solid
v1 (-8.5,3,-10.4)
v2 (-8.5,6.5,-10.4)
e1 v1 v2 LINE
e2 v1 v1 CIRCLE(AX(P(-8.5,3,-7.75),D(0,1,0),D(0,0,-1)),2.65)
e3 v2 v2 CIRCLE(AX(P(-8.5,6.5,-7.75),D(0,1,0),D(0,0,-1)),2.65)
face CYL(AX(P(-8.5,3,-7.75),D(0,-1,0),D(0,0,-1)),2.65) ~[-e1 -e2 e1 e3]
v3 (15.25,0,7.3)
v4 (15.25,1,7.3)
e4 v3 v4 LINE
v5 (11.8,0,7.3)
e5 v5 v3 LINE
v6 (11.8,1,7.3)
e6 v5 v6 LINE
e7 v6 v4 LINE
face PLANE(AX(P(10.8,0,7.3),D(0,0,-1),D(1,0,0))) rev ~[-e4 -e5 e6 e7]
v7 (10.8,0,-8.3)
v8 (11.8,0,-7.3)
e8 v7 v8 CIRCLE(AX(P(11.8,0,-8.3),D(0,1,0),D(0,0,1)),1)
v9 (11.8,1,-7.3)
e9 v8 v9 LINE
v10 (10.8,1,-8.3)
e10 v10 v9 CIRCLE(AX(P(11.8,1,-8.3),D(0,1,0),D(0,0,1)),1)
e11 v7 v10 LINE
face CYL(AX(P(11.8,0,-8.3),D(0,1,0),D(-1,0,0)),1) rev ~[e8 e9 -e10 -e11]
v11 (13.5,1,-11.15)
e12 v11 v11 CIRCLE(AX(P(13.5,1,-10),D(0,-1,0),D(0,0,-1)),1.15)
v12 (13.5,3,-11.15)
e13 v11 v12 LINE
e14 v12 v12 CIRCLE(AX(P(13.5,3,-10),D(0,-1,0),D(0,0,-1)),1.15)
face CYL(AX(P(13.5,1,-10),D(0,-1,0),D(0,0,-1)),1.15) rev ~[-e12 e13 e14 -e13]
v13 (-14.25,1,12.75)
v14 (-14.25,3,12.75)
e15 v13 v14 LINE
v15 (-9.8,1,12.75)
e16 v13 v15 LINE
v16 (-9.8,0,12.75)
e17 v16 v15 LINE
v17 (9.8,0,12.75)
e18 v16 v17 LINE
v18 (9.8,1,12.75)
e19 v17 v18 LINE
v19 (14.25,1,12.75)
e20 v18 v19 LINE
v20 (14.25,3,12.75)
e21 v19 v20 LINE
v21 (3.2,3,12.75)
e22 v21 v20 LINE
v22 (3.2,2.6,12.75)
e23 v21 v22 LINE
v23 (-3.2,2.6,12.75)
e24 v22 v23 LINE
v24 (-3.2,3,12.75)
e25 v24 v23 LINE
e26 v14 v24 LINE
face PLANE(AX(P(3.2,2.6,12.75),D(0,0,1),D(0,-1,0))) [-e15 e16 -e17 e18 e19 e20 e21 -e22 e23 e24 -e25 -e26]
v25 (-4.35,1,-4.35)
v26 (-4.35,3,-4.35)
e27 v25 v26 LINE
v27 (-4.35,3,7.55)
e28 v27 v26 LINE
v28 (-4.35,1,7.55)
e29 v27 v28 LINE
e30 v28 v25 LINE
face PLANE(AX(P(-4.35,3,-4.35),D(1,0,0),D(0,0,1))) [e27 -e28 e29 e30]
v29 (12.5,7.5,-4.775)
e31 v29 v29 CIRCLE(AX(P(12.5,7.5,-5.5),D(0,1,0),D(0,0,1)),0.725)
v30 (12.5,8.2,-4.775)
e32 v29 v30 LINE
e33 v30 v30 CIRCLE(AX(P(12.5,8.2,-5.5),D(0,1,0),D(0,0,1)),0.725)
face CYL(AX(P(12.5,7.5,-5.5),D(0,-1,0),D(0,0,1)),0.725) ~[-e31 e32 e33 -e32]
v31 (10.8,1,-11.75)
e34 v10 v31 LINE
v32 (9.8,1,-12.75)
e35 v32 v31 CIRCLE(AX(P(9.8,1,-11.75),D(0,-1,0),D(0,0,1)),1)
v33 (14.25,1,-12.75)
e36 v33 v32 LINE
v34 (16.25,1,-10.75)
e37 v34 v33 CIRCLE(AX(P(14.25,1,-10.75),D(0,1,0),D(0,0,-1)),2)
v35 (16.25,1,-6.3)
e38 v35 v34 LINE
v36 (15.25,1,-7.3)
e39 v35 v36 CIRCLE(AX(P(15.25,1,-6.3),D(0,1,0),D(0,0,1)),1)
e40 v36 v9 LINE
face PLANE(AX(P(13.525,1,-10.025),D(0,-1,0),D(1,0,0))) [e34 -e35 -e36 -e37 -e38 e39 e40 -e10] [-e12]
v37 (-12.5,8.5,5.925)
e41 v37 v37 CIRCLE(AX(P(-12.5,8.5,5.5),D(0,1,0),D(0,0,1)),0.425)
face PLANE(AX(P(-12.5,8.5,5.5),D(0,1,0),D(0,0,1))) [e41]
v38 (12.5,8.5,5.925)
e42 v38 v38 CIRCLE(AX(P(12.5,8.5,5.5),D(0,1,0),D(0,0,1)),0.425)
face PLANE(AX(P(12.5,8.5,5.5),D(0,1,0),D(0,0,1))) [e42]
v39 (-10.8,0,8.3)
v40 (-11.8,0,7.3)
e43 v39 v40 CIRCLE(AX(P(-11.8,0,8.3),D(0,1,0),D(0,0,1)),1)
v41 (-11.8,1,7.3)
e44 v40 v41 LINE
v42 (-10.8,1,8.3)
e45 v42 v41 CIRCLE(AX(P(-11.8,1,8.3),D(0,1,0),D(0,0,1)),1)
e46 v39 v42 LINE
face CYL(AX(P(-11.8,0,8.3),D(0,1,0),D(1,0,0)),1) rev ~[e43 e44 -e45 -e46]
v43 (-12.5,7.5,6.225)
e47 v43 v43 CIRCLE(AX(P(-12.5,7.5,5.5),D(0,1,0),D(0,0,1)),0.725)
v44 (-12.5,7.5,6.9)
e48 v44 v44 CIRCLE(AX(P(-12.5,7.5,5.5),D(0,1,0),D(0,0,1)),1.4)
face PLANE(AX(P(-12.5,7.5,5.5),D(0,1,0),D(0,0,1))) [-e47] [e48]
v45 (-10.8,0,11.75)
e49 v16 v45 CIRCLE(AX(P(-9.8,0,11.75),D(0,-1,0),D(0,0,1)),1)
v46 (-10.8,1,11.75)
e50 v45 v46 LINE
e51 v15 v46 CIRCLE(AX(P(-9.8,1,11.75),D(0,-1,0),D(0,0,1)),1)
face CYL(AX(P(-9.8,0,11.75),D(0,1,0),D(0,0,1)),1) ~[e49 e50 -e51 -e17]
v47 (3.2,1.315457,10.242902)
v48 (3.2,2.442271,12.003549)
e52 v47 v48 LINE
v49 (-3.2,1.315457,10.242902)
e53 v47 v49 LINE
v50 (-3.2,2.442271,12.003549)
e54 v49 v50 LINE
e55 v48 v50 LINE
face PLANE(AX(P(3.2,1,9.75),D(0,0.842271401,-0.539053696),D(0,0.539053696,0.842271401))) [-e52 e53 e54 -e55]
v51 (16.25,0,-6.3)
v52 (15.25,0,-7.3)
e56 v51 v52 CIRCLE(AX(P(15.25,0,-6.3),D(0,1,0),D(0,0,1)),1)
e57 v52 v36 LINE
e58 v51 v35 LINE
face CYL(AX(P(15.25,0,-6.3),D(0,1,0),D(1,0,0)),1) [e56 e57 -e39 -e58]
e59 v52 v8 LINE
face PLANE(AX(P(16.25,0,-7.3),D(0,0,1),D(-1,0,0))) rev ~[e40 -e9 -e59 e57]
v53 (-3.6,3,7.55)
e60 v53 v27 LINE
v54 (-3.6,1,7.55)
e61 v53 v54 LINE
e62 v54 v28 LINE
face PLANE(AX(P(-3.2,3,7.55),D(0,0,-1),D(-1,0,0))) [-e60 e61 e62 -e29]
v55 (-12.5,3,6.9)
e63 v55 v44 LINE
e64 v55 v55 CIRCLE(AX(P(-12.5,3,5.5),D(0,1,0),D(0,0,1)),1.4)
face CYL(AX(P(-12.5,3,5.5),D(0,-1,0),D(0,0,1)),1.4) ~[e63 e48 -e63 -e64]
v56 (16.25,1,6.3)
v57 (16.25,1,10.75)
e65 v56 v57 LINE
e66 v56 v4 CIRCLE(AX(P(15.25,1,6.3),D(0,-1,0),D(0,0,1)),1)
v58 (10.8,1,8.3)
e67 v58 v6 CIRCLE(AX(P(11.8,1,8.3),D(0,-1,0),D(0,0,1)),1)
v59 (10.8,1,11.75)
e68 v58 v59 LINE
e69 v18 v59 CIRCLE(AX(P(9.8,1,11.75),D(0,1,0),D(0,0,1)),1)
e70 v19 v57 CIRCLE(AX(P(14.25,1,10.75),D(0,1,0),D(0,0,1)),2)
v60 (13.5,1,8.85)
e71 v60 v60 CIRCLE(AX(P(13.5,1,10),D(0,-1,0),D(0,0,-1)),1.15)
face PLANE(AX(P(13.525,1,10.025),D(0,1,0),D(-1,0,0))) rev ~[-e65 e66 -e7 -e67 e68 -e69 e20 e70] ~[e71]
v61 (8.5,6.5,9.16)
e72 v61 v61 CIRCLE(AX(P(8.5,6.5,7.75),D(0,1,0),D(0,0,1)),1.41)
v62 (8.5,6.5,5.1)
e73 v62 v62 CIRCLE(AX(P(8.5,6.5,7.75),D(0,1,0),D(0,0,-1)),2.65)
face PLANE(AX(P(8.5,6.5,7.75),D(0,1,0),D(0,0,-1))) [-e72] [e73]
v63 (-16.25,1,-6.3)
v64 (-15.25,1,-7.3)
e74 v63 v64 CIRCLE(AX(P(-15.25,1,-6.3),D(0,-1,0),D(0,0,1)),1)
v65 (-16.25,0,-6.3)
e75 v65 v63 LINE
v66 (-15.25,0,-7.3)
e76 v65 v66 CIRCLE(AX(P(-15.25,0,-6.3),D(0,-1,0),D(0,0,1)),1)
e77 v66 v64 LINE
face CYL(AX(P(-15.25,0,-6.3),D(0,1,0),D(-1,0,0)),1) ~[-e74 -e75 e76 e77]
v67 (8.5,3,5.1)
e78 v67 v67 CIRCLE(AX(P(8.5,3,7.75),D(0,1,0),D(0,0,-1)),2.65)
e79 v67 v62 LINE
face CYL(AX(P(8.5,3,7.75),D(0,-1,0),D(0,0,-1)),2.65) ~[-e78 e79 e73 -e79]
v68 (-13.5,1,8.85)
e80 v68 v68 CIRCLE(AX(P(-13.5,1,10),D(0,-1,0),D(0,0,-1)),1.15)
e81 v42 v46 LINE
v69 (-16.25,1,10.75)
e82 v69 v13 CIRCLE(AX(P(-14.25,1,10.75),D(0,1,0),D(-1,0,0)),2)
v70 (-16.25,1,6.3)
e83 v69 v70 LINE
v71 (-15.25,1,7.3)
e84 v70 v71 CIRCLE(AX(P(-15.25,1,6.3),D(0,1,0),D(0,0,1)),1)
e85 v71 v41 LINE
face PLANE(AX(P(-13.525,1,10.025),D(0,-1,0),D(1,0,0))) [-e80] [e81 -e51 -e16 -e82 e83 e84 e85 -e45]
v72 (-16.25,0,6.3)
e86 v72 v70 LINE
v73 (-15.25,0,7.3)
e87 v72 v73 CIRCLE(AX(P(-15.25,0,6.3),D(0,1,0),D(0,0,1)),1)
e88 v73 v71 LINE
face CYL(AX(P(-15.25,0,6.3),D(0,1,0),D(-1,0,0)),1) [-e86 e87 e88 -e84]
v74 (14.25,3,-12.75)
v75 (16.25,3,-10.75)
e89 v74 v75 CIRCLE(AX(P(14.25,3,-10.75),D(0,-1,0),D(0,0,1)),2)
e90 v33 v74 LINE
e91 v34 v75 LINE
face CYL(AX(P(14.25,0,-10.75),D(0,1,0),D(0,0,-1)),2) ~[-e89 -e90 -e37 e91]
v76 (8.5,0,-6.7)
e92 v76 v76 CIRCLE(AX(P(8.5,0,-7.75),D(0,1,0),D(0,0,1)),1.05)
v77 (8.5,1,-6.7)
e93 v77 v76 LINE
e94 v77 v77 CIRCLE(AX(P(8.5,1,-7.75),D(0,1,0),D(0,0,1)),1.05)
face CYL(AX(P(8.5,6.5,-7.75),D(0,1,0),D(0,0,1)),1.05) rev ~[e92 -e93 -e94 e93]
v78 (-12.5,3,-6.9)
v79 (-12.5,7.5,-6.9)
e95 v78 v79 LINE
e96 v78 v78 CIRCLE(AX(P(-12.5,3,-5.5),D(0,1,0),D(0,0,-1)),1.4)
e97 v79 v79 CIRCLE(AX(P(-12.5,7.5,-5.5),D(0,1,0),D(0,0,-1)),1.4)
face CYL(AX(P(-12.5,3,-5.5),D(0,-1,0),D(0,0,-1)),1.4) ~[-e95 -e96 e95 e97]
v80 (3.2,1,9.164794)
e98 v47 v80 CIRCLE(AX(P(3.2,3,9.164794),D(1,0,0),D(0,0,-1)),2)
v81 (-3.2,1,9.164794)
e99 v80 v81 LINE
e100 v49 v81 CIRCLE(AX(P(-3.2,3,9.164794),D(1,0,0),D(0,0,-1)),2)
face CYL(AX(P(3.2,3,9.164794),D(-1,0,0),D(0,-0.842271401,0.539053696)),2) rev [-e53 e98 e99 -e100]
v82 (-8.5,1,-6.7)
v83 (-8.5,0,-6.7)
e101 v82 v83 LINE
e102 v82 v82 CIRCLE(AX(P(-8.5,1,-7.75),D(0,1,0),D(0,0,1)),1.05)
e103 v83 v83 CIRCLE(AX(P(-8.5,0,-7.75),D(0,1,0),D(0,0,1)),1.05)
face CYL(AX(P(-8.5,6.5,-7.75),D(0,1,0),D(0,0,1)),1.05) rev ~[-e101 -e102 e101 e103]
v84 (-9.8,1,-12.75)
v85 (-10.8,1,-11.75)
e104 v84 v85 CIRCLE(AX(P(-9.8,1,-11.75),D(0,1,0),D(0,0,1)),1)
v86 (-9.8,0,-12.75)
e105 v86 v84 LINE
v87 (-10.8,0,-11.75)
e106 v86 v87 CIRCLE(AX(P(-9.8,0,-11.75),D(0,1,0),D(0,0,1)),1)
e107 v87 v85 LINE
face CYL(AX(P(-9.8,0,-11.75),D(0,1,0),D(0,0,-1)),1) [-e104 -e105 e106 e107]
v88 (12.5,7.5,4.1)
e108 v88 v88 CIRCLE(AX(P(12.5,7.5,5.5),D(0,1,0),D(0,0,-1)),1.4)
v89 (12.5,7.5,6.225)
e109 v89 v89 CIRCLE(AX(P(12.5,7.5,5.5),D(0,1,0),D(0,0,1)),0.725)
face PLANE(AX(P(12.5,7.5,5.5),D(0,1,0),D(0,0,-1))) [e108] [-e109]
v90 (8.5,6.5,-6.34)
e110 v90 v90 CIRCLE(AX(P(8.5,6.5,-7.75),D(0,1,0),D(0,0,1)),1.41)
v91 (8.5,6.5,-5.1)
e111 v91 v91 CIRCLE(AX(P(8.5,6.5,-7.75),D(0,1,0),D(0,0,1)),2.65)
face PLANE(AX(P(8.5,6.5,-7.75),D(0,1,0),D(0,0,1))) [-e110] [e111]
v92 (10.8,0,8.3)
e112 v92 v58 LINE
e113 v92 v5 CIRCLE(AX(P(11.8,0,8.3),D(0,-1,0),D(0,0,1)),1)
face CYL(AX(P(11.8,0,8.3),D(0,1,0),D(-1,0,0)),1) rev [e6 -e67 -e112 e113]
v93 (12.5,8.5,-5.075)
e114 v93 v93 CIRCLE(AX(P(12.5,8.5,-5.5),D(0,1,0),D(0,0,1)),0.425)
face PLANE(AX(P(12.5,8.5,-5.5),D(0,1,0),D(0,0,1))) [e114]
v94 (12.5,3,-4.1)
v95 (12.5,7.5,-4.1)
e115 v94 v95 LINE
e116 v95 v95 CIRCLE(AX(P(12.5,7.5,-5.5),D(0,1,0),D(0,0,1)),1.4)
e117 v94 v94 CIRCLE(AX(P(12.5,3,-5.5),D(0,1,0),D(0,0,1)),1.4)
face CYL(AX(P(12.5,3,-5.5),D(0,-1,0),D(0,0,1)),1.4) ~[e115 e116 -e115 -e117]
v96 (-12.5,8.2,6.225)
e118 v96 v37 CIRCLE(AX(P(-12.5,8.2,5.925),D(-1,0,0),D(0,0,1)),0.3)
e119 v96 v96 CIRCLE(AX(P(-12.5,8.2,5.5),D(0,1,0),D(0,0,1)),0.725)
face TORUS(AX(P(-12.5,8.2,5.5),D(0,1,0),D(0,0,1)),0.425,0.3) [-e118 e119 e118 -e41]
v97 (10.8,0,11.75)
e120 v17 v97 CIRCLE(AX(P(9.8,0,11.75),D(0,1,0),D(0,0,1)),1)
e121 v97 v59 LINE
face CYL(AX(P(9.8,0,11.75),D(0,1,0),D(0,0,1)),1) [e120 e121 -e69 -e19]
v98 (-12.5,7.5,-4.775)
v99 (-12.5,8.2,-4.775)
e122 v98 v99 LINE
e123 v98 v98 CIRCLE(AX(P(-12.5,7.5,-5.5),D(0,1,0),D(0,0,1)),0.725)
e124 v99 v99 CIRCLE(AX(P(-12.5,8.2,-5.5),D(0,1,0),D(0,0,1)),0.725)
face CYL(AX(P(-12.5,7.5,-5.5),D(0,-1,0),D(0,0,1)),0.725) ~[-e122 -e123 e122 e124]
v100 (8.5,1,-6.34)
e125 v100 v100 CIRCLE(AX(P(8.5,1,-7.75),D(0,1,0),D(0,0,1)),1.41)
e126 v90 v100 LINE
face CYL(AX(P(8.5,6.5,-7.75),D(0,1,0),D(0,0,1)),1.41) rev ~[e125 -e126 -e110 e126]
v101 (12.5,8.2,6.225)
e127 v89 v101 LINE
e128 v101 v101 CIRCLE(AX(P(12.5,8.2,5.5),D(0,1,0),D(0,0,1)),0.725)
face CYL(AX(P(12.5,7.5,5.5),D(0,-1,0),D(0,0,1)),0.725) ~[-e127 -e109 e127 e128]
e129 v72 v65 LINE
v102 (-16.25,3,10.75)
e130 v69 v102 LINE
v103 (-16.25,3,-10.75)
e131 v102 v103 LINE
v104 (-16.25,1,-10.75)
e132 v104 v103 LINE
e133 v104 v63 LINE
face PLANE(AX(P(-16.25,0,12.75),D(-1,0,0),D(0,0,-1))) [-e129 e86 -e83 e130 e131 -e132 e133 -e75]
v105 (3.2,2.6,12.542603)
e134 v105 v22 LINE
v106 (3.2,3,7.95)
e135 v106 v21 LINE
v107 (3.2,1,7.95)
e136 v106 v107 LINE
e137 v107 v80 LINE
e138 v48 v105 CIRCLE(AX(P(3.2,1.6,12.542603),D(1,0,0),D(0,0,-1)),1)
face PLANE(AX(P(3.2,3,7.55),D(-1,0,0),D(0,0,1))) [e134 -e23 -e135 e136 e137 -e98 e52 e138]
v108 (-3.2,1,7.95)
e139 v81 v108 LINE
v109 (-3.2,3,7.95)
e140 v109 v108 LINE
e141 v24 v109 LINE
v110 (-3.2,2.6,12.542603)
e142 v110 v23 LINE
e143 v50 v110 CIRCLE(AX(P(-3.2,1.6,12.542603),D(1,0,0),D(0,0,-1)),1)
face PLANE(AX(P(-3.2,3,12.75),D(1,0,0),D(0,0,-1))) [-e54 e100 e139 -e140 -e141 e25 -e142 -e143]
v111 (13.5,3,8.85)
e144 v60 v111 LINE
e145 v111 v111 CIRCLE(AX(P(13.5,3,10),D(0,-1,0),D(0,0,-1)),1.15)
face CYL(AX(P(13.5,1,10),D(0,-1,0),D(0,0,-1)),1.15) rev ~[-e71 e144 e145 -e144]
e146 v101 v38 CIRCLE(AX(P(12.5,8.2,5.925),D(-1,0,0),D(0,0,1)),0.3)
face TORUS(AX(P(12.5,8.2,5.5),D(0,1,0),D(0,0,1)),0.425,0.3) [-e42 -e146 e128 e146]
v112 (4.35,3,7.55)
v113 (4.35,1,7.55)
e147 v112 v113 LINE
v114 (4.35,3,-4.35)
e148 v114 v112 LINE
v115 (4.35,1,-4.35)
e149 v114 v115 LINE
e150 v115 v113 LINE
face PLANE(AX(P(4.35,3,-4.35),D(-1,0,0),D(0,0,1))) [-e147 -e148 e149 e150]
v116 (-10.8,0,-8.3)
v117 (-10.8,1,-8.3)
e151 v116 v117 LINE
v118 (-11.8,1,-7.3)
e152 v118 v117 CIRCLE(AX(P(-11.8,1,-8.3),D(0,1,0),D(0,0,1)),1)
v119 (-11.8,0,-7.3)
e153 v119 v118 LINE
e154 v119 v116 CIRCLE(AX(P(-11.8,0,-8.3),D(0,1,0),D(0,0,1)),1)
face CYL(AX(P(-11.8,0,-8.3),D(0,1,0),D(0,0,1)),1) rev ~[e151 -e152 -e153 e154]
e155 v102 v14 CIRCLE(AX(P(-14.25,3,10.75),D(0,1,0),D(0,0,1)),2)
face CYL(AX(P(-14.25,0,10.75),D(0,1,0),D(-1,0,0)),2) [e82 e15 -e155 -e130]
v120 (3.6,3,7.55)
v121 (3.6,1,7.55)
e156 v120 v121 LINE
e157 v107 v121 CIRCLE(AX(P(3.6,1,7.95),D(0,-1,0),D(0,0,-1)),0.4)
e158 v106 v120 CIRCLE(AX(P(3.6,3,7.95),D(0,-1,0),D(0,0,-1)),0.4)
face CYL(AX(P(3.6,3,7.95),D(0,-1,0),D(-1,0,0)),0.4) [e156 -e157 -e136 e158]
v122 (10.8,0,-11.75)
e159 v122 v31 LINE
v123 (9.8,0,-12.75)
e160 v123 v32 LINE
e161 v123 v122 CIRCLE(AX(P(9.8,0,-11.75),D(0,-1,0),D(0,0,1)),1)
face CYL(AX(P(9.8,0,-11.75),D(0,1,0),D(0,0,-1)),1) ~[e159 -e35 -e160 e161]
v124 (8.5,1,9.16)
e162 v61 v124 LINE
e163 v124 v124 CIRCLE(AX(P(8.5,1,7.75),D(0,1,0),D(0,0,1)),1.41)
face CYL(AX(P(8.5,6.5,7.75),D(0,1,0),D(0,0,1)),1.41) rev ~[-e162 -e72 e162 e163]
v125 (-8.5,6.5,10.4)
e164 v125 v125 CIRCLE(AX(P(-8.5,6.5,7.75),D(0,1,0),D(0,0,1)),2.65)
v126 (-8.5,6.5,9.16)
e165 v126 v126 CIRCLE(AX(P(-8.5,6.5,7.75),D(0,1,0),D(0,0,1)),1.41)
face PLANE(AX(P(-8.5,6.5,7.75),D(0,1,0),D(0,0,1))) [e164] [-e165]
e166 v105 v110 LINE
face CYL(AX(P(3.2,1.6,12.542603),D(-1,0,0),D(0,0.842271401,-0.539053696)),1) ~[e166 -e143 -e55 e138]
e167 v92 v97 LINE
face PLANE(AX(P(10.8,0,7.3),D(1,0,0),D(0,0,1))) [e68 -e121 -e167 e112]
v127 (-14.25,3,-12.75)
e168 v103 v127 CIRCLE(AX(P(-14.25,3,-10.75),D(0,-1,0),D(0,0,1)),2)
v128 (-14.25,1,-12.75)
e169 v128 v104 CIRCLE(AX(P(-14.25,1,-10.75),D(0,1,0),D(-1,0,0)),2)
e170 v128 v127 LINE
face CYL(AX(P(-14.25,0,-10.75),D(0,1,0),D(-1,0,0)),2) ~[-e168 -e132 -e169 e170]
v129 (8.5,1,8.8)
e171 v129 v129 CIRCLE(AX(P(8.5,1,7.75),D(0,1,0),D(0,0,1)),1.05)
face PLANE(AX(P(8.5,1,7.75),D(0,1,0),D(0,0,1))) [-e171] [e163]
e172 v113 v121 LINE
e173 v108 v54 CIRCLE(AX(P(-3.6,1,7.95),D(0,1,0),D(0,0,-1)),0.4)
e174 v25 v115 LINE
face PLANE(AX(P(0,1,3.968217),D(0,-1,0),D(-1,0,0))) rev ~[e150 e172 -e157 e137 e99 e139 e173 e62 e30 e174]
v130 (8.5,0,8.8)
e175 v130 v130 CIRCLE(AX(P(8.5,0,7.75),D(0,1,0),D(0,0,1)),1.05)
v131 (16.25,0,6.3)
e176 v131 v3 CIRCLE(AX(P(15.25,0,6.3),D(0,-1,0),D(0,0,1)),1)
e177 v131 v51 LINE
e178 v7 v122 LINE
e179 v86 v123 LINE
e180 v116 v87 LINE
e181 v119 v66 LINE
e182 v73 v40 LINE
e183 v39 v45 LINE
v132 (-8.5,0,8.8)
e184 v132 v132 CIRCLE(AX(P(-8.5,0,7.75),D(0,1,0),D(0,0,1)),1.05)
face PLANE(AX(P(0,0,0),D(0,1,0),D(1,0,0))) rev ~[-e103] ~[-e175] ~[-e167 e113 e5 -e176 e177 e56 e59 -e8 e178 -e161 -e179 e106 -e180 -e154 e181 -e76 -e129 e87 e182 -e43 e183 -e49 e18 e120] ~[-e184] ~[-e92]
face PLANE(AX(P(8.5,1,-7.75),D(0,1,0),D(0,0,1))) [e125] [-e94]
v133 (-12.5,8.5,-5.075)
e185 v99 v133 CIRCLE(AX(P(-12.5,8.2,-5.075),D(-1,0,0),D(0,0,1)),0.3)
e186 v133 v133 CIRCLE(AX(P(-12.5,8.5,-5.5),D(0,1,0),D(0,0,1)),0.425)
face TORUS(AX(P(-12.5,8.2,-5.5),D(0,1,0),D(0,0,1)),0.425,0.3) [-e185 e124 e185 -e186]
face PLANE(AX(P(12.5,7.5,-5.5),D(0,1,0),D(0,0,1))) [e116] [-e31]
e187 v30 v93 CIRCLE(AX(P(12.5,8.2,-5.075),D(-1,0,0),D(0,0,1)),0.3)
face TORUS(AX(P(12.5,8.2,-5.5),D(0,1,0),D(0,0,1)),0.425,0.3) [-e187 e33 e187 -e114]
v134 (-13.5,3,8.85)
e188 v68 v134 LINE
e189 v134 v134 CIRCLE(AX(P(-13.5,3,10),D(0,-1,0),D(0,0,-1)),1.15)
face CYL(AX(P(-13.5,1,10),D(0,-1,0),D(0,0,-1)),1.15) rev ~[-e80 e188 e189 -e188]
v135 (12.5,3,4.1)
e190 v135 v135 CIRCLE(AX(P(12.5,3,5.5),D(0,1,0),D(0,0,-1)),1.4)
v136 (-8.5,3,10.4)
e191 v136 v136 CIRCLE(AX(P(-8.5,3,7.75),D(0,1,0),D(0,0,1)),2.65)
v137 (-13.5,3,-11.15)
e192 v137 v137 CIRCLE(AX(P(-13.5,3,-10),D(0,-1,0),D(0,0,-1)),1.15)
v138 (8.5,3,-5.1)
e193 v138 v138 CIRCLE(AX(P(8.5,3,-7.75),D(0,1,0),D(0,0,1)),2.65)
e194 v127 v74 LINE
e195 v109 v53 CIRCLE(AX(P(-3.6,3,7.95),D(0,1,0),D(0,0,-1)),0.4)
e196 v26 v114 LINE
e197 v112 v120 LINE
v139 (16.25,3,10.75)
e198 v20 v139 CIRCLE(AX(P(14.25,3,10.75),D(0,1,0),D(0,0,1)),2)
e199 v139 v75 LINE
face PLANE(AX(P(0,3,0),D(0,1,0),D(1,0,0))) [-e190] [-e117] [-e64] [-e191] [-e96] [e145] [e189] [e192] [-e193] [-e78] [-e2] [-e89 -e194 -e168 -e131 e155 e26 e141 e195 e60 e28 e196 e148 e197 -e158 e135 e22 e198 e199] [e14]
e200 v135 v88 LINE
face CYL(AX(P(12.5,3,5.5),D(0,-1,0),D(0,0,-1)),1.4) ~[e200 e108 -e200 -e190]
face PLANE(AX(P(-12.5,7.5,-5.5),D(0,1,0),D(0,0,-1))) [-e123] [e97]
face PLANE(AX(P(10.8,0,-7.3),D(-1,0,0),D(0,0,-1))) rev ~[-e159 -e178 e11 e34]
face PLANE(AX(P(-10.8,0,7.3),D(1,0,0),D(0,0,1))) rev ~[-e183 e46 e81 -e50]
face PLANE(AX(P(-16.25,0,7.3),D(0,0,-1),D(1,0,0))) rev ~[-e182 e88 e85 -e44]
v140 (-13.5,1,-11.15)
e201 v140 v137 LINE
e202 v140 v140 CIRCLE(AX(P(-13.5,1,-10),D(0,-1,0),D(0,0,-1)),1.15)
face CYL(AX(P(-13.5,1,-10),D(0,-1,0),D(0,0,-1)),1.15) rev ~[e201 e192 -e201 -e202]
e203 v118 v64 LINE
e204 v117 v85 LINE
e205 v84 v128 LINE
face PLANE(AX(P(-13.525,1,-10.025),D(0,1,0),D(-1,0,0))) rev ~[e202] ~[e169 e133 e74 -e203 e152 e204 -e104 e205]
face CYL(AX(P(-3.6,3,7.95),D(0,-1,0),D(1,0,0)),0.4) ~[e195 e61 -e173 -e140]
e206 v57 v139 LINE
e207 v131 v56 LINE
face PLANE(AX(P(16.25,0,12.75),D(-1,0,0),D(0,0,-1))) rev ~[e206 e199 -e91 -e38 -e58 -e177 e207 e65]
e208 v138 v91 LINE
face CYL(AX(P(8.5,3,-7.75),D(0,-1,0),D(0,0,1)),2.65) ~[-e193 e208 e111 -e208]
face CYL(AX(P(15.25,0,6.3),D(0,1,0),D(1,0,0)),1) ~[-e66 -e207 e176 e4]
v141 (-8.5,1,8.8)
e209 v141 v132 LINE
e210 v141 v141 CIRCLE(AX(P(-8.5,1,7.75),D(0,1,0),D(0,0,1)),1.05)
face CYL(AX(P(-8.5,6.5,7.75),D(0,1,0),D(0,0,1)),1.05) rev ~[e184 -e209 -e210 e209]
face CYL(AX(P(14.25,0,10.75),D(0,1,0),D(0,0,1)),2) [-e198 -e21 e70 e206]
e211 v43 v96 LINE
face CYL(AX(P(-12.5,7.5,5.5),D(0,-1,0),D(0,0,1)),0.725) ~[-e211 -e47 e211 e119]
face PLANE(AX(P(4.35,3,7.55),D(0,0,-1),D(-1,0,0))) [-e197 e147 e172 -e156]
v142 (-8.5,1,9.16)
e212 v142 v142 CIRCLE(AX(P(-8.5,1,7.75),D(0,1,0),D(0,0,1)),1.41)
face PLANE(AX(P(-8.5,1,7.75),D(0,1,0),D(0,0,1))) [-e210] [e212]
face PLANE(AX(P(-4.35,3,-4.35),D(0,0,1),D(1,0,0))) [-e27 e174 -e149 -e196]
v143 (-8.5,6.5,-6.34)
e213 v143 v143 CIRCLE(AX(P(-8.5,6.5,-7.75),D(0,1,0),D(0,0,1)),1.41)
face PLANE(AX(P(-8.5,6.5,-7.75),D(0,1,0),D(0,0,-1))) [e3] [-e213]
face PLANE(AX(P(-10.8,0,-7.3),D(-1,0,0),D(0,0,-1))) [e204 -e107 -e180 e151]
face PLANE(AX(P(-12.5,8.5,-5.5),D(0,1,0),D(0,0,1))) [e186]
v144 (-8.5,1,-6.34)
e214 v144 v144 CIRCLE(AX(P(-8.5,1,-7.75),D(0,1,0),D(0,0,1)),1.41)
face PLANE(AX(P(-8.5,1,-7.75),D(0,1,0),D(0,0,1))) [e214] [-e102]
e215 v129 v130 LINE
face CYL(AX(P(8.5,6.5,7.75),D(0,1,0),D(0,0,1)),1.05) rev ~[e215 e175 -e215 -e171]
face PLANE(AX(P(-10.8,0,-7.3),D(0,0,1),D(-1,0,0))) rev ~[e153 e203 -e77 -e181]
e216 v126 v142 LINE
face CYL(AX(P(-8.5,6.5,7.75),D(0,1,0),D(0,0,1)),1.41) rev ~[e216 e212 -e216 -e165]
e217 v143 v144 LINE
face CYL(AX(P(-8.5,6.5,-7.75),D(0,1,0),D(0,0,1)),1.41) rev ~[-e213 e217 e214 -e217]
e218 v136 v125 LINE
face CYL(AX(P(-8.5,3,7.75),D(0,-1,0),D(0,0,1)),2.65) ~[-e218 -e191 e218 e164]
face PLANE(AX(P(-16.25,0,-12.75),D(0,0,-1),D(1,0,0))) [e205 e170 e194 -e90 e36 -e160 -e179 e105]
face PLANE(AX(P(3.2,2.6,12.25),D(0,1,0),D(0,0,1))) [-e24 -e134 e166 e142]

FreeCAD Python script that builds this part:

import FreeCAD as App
import Part
import Sketcher
from FreeCAD import Vector


def edges_at(feature, points):
    """Names of the edges that pass closest to the given points."""
    edges = feature.Shape.Edges
    near = lambda p: min(range(len(edges)), key=lambda i: edges[i].distToShape(Part.Vertex(*p))[0])
    return sorted({f"Edge{near(p) + 1}" for p in points})

doc = App.newDocument("Part")
body = doc.addObject("PartDesign::Body", "Body")

sketch1 = body.newObject("Sketcher::SketchObject", "Sketch")
sketch1.AttachmentSupport = (doc.getObject("XZ_Plane"), [""])
sketch1.MapMode = "FlatFace"
sketch1.addGeometry(Part.LineSegment(Vector(-16, -13, 0), Vector(-16, 13, 0)), False)
sketch1.addGeometry(Part.LineSegment(Vector(-16, 13, 0), Vector(16, 13, 0)), False)
sketch1.addGeometry(Part.LineSegment(Vector(16, 13, 0), Vector(16, -13, 0)), False)
sketch1.addGeometry(Part.LineSegment(Vector(16, -13, 0), Vector(-16, -13, 0)), False)
sketch1.addConstraint(Sketcher.Constraint("Coincident", 0, 2, 1, 1))
sketch1.addConstraint(Sketcher.Constraint("Coincident", 1, 2, 2, 1))
sketch1.addConstraint(Sketcher.Constraint("Coincident", 2, 2, 3, 1))
sketch1.addConstraint(Sketcher.Constraint("Coincident", 3, 2, 0, 1))
sketch1.addConstraint(Sketcher.Constraint("Vertical", 0))
sketch1.addConstraint(Sketcher.Constraint("Horizontal", 1))
sketch1.addConstraint(Sketcher.Constraint("Vertical", 2))
sketch1.addConstraint(Sketcher.Constraint("Horizontal", 3))
sketch1.addConstraint(Sketcher.Constraint("Symmetric", 0, 2, 2, 2, -1, 1))
sketch1.addConstraint(Sketcher.Constraint("DistanceX", 1, 1, 1, 2, 32.5))
sketch1.addConstraint(Sketcher.Constraint("DistanceY", 0, 1, 0, 2, 25.5))
pad1 = body.newObject("PartDesign::Pad", "Pad")
pad1.Profile = sketch1
pad1.Length = 3
pad1.Reversed = True

sketch2 = body.newObject("Sketcher::SketchObject", "Sketch001")
sketch2.AttachmentSupport = (doc.getObject("XZ_Plane"), [""])
sketch2.MapMode = "FlatFace"
sketch2.AttachmentOffset = App.Placement(Vector(0, 0, -3), App.Rotation())
sketch2.addGeometry(Part.LineSegment(Vector(5.3, -5.3, 0), Vector(-5.3, -5.3, 0)), False)
sketch2.addGeometry(Part.LineSegment(Vector(-5.3, -5.3, 0), Vector(-5.3, 7.5, 0)), False)
sketch2.addGeometry(Part.LineSegment(Vector(-5.3, 7.5, 0), Vector(-4.3, 7.5, 0)), False)
sketch2.addGeometry(Part.LineSegment(Vector(-4.3, 7.5, 0), Vector(-4.3, -4.3, 0)), False)
sketch2.addGeometry(Part.LineSegment(Vector(-4.3, -4.3, 0), Vector(4.3, -4.3, 0)), False)
sketch2.addGeometry(Part.LineSegment(Vector(4.3, -4.3, 0), Vector(4.3, 7.5, 0)), False)
sketch2.addGeometry(Part.LineSegment(Vector(4.3, 7.5, 0), Vector(5.3, 7.5, 0)), False)
sketch2.addGeometry(Part.LineSegment(Vector(5.3, 7.5, 0), Vector(5.3, -5.3, 0)), False)
sketch2.addConstraint(Sketcher.Constraint("Coincident", 0, 2, 1, 1))
sketch2.addConstraint(Sketcher.Constraint("Coincident", 1, 2, 2, 1))
sketch2.addConstraint(Sketcher.Constraint("Coincident", 2, 2, 3, 1))
sketch2.addConstraint(Sketcher.Constraint("Coincident", 3, 2, 4, 1))
sketch2.addConstraint(Sketcher.Constraint("Coincident", 4, 2, 5, 1))
sketch2.addConstraint(Sketcher.Constraint("Coincident", 5, 2, 6, 1))
sketch2.addConstraint(Sketcher.Constraint("Coincident", 6, 2, 7, 1))
sketch2.addConstraint(Sketcher.Constraint("Coincident", 7, 2, 0, 1))
sketch2.addConstraint(Sketcher.Constraint("Horizontal", 0))
sketch2.addConstraint(Sketcher.Constraint("Vertical", 1))
sketch2.addConstraint(Sketcher.Constraint("Horizontal", 2))
sketch2.addConstraint(Sketcher.Constraint("Vertical", 3))
sketch2.addConstraint(Sketcher.Constraint("Horizontal", 4))
sketch2.addConstraint(Sketcher.Constraint("Vertical", 5))
sketch2.addConstraint(Sketcher.Constraint("Horizontal", 6))
sketch2.addConstraint(Sketcher.Constraint("Vertical", 7))
sketch2.addConstraint(Sketcher.Constraint("Symmetric", 2, 2, 5, 2, -2))
sketch2.addConstraint(Sketcher.Constraint("Equal", 2, 6))
sketch2.addConstraint(Sketcher.Constraint("DistanceX", 2, 1, 2, 2, 1.0))
sketch2.addConstraint(Sketcher.Constraint("DistanceX", 0, 2, 0, 1, 10.7))
sketch2.addConstraint(Sketcher.Constraint("DistanceY", 1, 1, 1, 2, 12.9))
sketch2.addConstraint(Sketcher.Constraint("DistanceY", 3, 2, 3, 1, 11.9))
sketch2.addConstraint(Sketcher.Constraint("DistanceY", 0, 2, -1, 1, 5.35))
pad2 = body.newObject("PartDesign::Pad", "Pad001")
pad2.Profile = sketch2
pad2.Length = 1.5
pad2.Reversed = True

sketch3 = body.newObject("Sketcher::SketchObject", "Sketch002")
sketch3.AttachmentSupport = (doc.getObject("XZ_Plane"), [""])
sketch3.MapMode = "FlatFace"
sketch3.AttachmentOffset = App.Placement(Vector(0, 0, -3), App.Rotation())
sketch3.addGeometry(Part.Circle(Vector(12.5, -5.5, 0), Vector(0, 0, 1), 1.4), False)
sketch3.addGeometry(Part.Circle(Vector(12.5, 5.5, 0), Vector(0, 0, 1), 1.4), False)
sketch3.addGeometry(Part.Circle(Vector(-12.5, 5.5, 0), Vector(0, 0, 1), 1.4), False)
sketch3.addGeometry(Part.Circle(Vector(-12.5, -5.5, 0), Vector(0, 0, 1), 1.4), False)
sketch3.addConstraint(Sketcher.Constraint("Equal", 0, 1))
sketch3.addConstraint(Sketcher.Constraint("Equal", 1, 2))
sketch3.addConstraint(Sketcher.Constraint("Equal", 2, 3))
sketch3.addConstraint(Sketcher.Constraint("Symmetric", 0, 3, 2, 3, -1, 1))
sketch3.addConstraint(Sketcher.Constraint("Symmetric", 1, 3, 3, 3, -1, 1))
sketch3.addConstraint(Sketcher.Constraint("Symmetric", 1, 3, 2, 3, -2))
sketch3.addConstraint(Sketcher.Constraint("Diameter", 0, 2.8))
sketch3.addConstraint(Sketcher.Constraint("DistanceY", 0, 3, 1, 3, 11.0))
sketch3.addConstraint(Sketcher.Constraint("DistanceX", 2, 3, 1, 3, 25.0))
pad3 = body.newObject("PartDesign::Pad", "Pad002")
pad3.Profile = sketch3
pad3.Length = 4.5
pad3.Reversed = True

sketch4 = body.newObject("Sketcher::SketchObject", "Sketch003")
sketch4.AttachmentSupport = (doc.getObject("XZ_Plane"), [""])
sketch4.MapMode = "FlatFace"
sketch4.AttachmentOffset = App.Placement(Vector(0, 0, -7.5), App.Rotation())
sketch4.addGeometry(Part.Circle(Vector(-12.5, 5.5, 0), Vector(0, 0, 1), 0.7), False)
sketch4.addGeometry(Part.Circle(Vector(-12.5, -5.5, 0), Vector(0, 0, 1), 0.7), False)
sketch4.addGeometry(Part.Circle(Vector(12.5, -5.5, 0), Vector(0, 0, 1), 0.7), False)
sketch4.addGeometry(Part.Circle(Vector(12.5, 5.5, 0), Vector(0, 0, 1), 0.7), False)
sketch4.addConstraint(Sketcher.Constraint("Equal", 0, 1))
sketch4.addConstraint(Sketcher.Constraint("Equal", 1, 2))
sketch4.addConstraint(Sketcher.Constraint("Equal", 2, 3))
sketch4.addConstraint(Sketcher.Constraint("Symmetric", 0, 3, 2, 3, -1, 1))
sketch4.addConstraint(Sketcher.Constraint("Symmetric", 1, 3, 3, 3, -1, 1))
sketch4.addConstraint(Sketcher.Constraint("Symmetric", 1, 3, 2, 3, -2))
sketch4.addConstraint(Sketcher.Constraint("Diameter", 0, 1.45))
sketch4.addConstraint(Sketcher.Constraint("DistanceY", 1, 3, 0, 3, 11.0))
sketch4.addConstraint(Sketcher.Constraint("DistanceX", 1, 3, 2, 3, 25.0))
pad4 = body.newObject("PartDesign::Pad", "Pad003")
pad4.Profile = sketch4
pad4.Length = 1
pad4.Reversed = True

sketch5 = body.newObject("Sketcher::SketchObject", "Sketch004")
sketch5.AttachmentSupport = (doc.getObject("XZ_Plane"), [""])
sketch5.MapMode = "FlatFace"
sketch5.AttachmentOffset = App.Placement(Vector(0, 0, -3), App.Rotation())
sketch5.addGeometry(Part.Circle(Vector(13.5, -10, 0), Vector(0, 0, 1), 1), False)
sketch5.addGeometry(Part.Circle(Vector(-13.5, -10, 0), Vector(0, 0, 1), 1), False)
sketch5.addGeometry(Part.Circle(Vector(-13.5, 10, 0), Vector(0, 0, 1), 1), False)
sketch5.addGeometry(Part.Circle(Vector(13.5, 10, 0), Vector(0, 0, 1), 1), False)
sketch5.addConstraint(Sketcher.Constraint("Equal", 0, 1))
sketch5.addConstraint(Sketcher.Constraint("Equal", 1, 2))
sketch5.addConstraint(Sketcher.Constraint("Equal", 2, 3))
sketch5.addConstraint(Sketcher.Constraint("Symmetric", 0, 3, 2, 3, -1, 1))
sketch5.addConstraint(Sketcher.Constraint("Symmetric", 1, 3, 3, 3, -1, 1))
sketch5.addConstraint(Sketcher.Constraint("Symmetric", 0, 3, 1, 3, -2))
sketch5.addConstraint(Sketcher.Constraint("Diameter", 0, 2.0))
sketch5.addConstraint(Sketcher.Constraint("DistanceY", 0, 3, -1, 1, 10.0))
sketch5.addConstraint(Sketcher.Constraint("DistanceX", 1, 3, 0, 3, 27.0))
pocket1 = body.newObject("PartDesign::Pocket", "Pocket")
pocket1.Profile = sketch5
pocket1.Length = 10
pocket1.Reversed = True

sketch6 = body.newObject("Sketcher::SketchObject", "Sketch005")
sketch6.AttachmentSupport = (doc.getObject("XZ_Plane"), [""])
sketch6.MapMode = "FlatFace"
sketch6.addGeometry(Part.Circle(Vector(-13.5, 10, 0), Vector(0, 0, 1), 2), False)
sketch6.addGeometry(Part.Circle(Vector(13.5, 10, 0), Vector(0, 0, 1), 2), False)
sketch6.addGeometry(Part.Circle(Vector(13.5, -10, 0), Vector(0, 0, 1), 2), False)
sketch6.addGeometry(Part.Circle(Vector(-13.5, -10, 0), Vector(0, 0, 1), 2), False)
sketch6.addConstraint(Sketcher.Constraint("Equal", 0, 1))
sketch6.addConstraint(Sketcher.Constraint("Equal", 1, 2))
sketch6.addConstraint(Sketcher.Constraint("Equal", 2, 3))
sketch6.addConstraint(Sketcher.Constraint("Symmetric", 0, 3, 2, 3, -1, 1))
sketch6.addConstraint(Sketcher.Constraint("Symmetric", 1, 3, 3, 3, -1, 1))
sketch6.addConstraint(Sketcher.Constraint("Symmetric", 0, 3, 1, 3, -2))
sketch6.addConstraint(Sketcher.Constraint("Diameter", 0, 4.0))
sketch6.addConstraint(Sketcher.Constraint("DistanceY", -1, 1, 0, 3, 10.0))
sketch6.addConstraint(Sketcher.Constraint("DistanceX", 0, 3, 1, 3, 27.0))
pocket2 = body.newObject("PartDesign::Pocket", "Pocket001")
pocket2.Profile = sketch6
pocket2.Length = 1
doc.recompute()

fillet = body.newObject("PartDesign::Fillet", "Fillet")
fillet.Base = (pocket2, edges_at(pocket2, [
    (16.25, 1.5, 12.75),
    (-16.25, 1.5, 12.75),
    (-16.25, 1.5, -12.75),
    (16.25, 1.5, -12.75),
]))
fillet.Radius = 2

sketch7 = body.newObject("Sketcher::SketchObject", "Sketch006")
sketch7.AttachmentSupport = (doc.getObject("XZ_Plane"), [""])
sketch7.MapMode = "FlatFace"
sketch7.AttachmentOffset = App.Placement(Vector(0, 0, -3), App.Rotation())
sketch7.addGeometry(Part.Circle(Vector(8.5, -7.8, 0), Vector(0, 0, 1), 2.6), False)
sketch7.addGeometry(Part.Circle(Vector(-8.5, -7.8, 0), Vector(0, 0, 1), 2.6), False)
sketch7.addGeometry(Part.Circle(Vector(-8.5, 7.8, 0), Vector(0, 0, 1), 2.6), False)
sketch7.addGeometry(Part.Circle(Vector(8.5, 7.8, 0), Vector(0, 0, 1), 2.6), False)
sketch7.addConstraint(Sketcher.Constraint("Equal", 0, 1))
sketch7.addConstraint(Sketcher.Constraint("Equal", 1, 2))
sketch7.addConstraint(Sketcher.Constraint("Equal", 2, 3))
sketch7.addConstraint(Sketcher.Constraint("Symmetric", 0, 3, 2, 3, -1, 1))
sketch7.addConstraint(Sketcher.Constraint("Symmetric", 1, 3, 3, 3, -1, 1))
sketch7.addConstraint(Sketcher.Constraint("Symmetric", 0, 3, 1, 3, -2))
sketch7.addConstraint(Sketcher.Constraint("Diameter", 0, 5.3))
sketch7.addConstraint(Sketcher.Constraint("DistanceX", 1, 3, 0, 3, 17.0))
sketch7.addConstraint(Sketcher.Constraint("DistanceY", 1, 3, 2, 3, 15.5))
pad5 = body.newObject("PartDesign::Pad", "Pad004")
pad5.Profile = sketch7
pad5.Length = 3.5
pad5.Reversed = True

sketch8 = body.newObject("Sketcher::SketchObject", "Sketch007")
sketch8.AttachmentSupport = (doc.getObject("XZ_Plane"), [""])
sketch8.MapMode = "FlatFace"
sketch8.AttachmentOffset = App.Placement(Vector(0, 0, -6.5), App.Rotation())
sketch8.addGeometry(Part.Circle(Vector(-8.5, -7.8, 0), Vector(0, 0, 1), 1.1), False)
sketch8.addGeometry(Part.Circle(Vector(-8.5, 7.8, 0), Vector(0, 0, 1), 1.1), False)
sketch8.addGeometry(Part.Circle(Vector(8.5, 7.8, 0), Vector(0, 0, 1), 1.1), False)
sketch8.addGeometry(Part.Circle(Vector(8.5, -7.8, 0), Vector(0, 0, 1), 1.1), False)
sketch8.addConstraint(Sketcher.Constraint("Equal", 0, 1))
sketch8.addConstraint(Sketcher.Constraint("Equal", 1, 2))
sketch8.addConstraint(Sketcher.Constraint("Equal", 2, 3))
sketch8.addConstraint(Sketcher.Constraint("Symmetric", 0, 3, 2, 3, -1, 1))
sketch8.addConstraint(Sketcher.Constraint("Symmetric", 1, 3, 3, 3, -1, 1))
sketch8.addConstraint(Sketcher.Constraint("Symmetric", 1, 3, 2, 3, -2))
sketch8.addConstraint(Sketcher.Constraint("Diameter", 0, 2.1))
sketch8.addConstraint(Sketcher.Constraint("DistanceX", 1, 3, 2, 3, 17.0))
sketch8.addConstraint(Sketcher.Constraint("DistanceY", 0, 3, 1, 3, 15.5))
pocket3 = body.newObject("PartDesign::Pocket", "Pocket002")
pocket3.Profile = sketch8
pocket3.Length = 100
pocket3.Reversed = True

sketch9 = body.newObject("Sketcher::SketchObject", "Sketch008")
sketch9.AttachmentSupport = (doc.getObject("XZ_Plane"), [""])
sketch9.MapMode = "FlatFace"
sketch9.AttachmentOffset = App.Placement(Vector(0, 0, -6.5), App.Rotation())
sketch9.addGeometry(Part.Circle(Vector(-8.5, -7.8, 0), Vector(0, 0, 1), 1.4), False)
sketch9.addGeometry(Part.Circle(Vector(8.5, -7.8, 0), Vector(0, 0, 1), 1.4), False)
sketch9.addGeometry(Part.Circle(Vector(-8.5, 7.8, 0), Vector(0, 0, 1), 1.4), False)
sketch9.addGeometry(Part.Circle(Vector(8.5, 7.8, 0), Vector(0, 0, 1), 1.4), False)
sketch9.addConstraint(Sketcher.Constraint("Equal", 0, 1))
sketch9.addConstraint(Sketcher.Constraint("Equal", 1, 2))
sketch9.addConstraint(Sketcher.Constraint("Equal", 2, 3))
sketch9.addConstraint(Sketcher.Constraint("Symmetric", 1, 3, 2, 3, -1, 1))
sketch9.addConstraint(Sketcher.Constraint("Symmetric", 0, 3, 3, 3, -1, 1))
sketch9.addConstraint(Sketcher.Constraint("Symmetric", 0, 3, 1, 3, -2))
sketch9.addConstraint(Sketcher.Constraint("Diameter", 0, 2.82))
sketch9.addConstraint(Sketcher.Constraint("DistanceX", 0, 3, 1, 3, 17.0))
sketch9.addConstraint(Sketcher.Constraint("DistanceY", 0, 3, 2, 3, 15.5))
pocket4 = body.newObject("PartDesign::Pocket", "Pocket003")
pocket4.Profile = sketch9
pocket4.Length = 5.5
pocket4.Reversed = True
doc.recompute()

fillet2 = body.newObject("PartDesign::Fillet", "Fillet001")
fillet2.Base = (pocket4, edges_at(pocket4, [
    (-12.5, 8.5, 4.775),
    (-12.5, 8.5, -6.225),
    (12.5, 8.5, -6.225),
    (12.5, 8.5, 4.775),
]))
fillet2.Radius = 0.3

sketch10 = body.newObject("Sketcher::SketchObject", "Sketch009")
sketch10.AttachmentSupport = (doc.getObject("XZ_Plane"), [""])
sketch10.MapMode = "FlatFace"
sketch10.AttachmentOffset = App.Placement(Vector(0, 0, -3), App.Rotation())
sketch10.addGeometry(Part.LineSegment(Vector(4.3, -4.3, 0), Vector(-4.3, -4.3, 0)), False)
sketch10.addGeometry(Part.LineSegment(Vector(-4.3, -4.3, 0), Vector(-4.3, 7.5, 0)), False)
sketch10.addGeometry(Part.LineSegment(Vector(-4.3, 7.5, 0), Vector(-3.2, 7.5, 0)), False)
sketch10.addGeometry(Part.LineSegment(Vector(-3.2, 7.5, 0), Vector(-3.2, 12.8, 0)), False)
sketch10.addGeometry(Part.LineSegment(Vector(-3.2, 12.8, 0), Vector(3.2, 12.8, 0)), False)
sketch10.addGeometry(Part.LineSegment(Vector(3.2, 12.8, 0), Vector(3.2, 7.5, 0)), False)
sketch10.addGeometry(Part.LineSegment(Vector(3.2, 7.5, 0), Vector(4.3, 7.5, 0)), False)
sketch10.addGeometry(Part.LineSegment(Vector(4.3, 7.5, 0), Vector(4.3, -4.3, 0)), False)
sketch10.addConstraint(Sketcher.Constraint("Coincident", 0, 2, 1, 1))
sketch10.addConstraint(Sketcher.Constraint("Coincident", 1, 2, 2, 1))
sketch10.addConstraint(Sketcher.Constraint("Coincident", 2, 2, 3, 1))
sketch10.addConstraint(Sketcher.Constraint("Coincident", 3, 2, 4, 1))
sketch10.addConstraint(Sketcher.Constraint("Coincident", 4, 2, 5, 1))
sketch10.addConstraint(Sketcher.Constraint("Coincident", 5, 2, 6, 1))
sketch10.addConstraint(Sketcher.Constraint("Coincident", 6, 2, 7, 1))
sketch10.addConstraint(Sketcher.Constraint("Coincident", 7, 2, 0, 1))
sketch10.addConstraint(Sketcher.Constraint("Horizontal", 0))
sketch10.addConstraint(Sketcher.Constraint("Vertical", 1))
sketch10.addConstraint(Sketcher.Constraint("Horizontal", 2))
sketch10.addConstraint(Sketcher.Constraint("Vertical", 3))
sketch10.addConstraint(Sketcher.Constraint("Horizontal", 4))
sketch10.addConstraint(Sketcher.Constraint("Vertical", 5))
sketch10.addConstraint(Sketcher.Constraint("Horizontal", 6))
sketch10.addConstraint(Sketcher.Constraint("Vertical", 7))
sketch10.addConstraint(Sketcher.Constraint("Symmetric", 2, 2, 5, 2, -2))
sketch10.addConstraint(Sketcher.Constraint("Equal", 2, 6))
sketch10.addConstraint(Sketcher.Constraint("DistanceX", 0, 2, 0, 1, 8.7))
sketch10.addConstraint(Sketcher.Constraint("DistanceX", 4, 1, 4, 2, 6.4))
sketch10.addConstraint(Sketcher.Constraint("DistanceY", 1, 1, 1, 2, 11.9))
sketch10.addConstraint(Sketcher.Constraint("DistanceY", 3, 1, 3, 2, 5.2))
sketch10.addConstraint(Sketcher.Constraint("DistanceY", 0, 2, -1, 1, 4.35))
pocket5 = body.newObject("PartDesign::Pocket", "Pocket004")
pocket5.Profile = sketch10
pocket5.Length = 2
pocket5.Reversed = True

sketch11 = body.newObject("Sketcher::SketchObject", "Sketch010")
sketch11.AttachmentSupport = (doc.getObject("XZ_Plane"), [""])
sketch11.MapMode = "FlatFace"
sketch11.AttachmentOffset = App.Placement(Vector(0, 0, -4.5), App.Rotation())
sketch11.addGeometry(Part.LineSegment(Vector(-4.3, 7.5, 0), Vector(-4.3, -4.3, 0)), False)
sketch11.addGeometry(Part.LineSegment(Vector(-4.3, -4.3, 0), Vector(4.3, -4.3, 0)), False)
sketch11.addGeometry(Part.LineSegment(Vector(4.3, -4.3, 0), Vector(4.3, 7.5, 0)), False)
sketch11.addGeometry(Part.LineSegment(Vector(4.3, 7.5, 0), Vector(5.3, 7.5, 0)), False)
sketch11.addGeometry(Part.LineSegment(Vector(5.3, 7.5, 0), Vector(5.3, -5.3, 0)), False)
sketch11.addGeometry(Part.LineSegment(Vector(5.3, -5.3, 0), Vector(-5.3, -5.3, 0)), False)
sketch11.addGeometry(Part.LineSegment(Vector(-5.3, -5.3, 0), Vector(-5.3, 7.5, 0)), False)
sketch11.addGeometry(Part.LineSegment(Vector(-5.3, 7.5, 0), Vector(-4.3, 7.5, 0)), False)
sketch11.addConstraint(Sketcher.Constraint("Coincident", 0, 2, 1, 1))
sketch11.addConstraint(Sketcher.Constraint("Coincident", 1, 2, 2, 1))
sketch11.addConstraint(Sketcher.Constraint("Coincident", 2, 2, 3, 1))
sketch11.addConstraint(Sketcher.Constraint("Coincident", 3, 2, 4, 1))
sketch11.addConstraint(Sketcher.Constraint("Coincident", 4, 2, 5, 1))
sketch11.addConstraint(Sketcher.Constraint("Coincident", 5, 2, 6, 1))
sketch11.addConstraint(Sketcher.Constraint("Coincident", 6, 2, 7, 1))
sketch11.addConstraint(Sketcher.Constraint("Coincident", 7, 2, 0, 1))
sketch11.addConstraint(Sketcher.Constraint("Vertical", 0))
sketch11.addConstraint(Sketcher.Constraint("Horizontal", 1))
sketch11.addConstraint(Sketcher.Constraint("Vertical", 2))
sketch11.addConstraint(Sketcher.Constraint("Horizontal", 3))
sketch11.addConstraint(Sketcher.Constraint("Vertical", 4))
sketch11.addConstraint(Sketcher.Constraint("Horizontal", 5))
sketch11.addConstraint(Sketcher.Constraint("Vertical", 6))
sketch11.addConstraint(Sketcher.Constraint("Horizontal", 7))
sketch11.addConstraint(Sketcher.Constraint("Symmetric", 3, 2, 6, 2, -2))
sketch11.addConstraint(Sketcher.Constraint("Equal", 3, 7))
sketch11.addConstraint(Sketcher.Constraint("DistanceX", 3, 1, 3, 2, 1.0))
sketch11.addConstraint(Sketcher.Constraint("DistanceX", 1, 1, 1, 2, 8.7))
sketch11.addConstraint(Sketcher.Constraint("DistanceY", 0, 2, 0, 1, 11.9))
sketch11.addConstraint(Sketcher.Constraint("DistanceY", 4, 2, 4, 1, 12.9))
sketch11.addConstraint(Sketcher.Constraint("DistanceY", 0, 2, -1, 1, 4.35))
pocket6 = body.newObject("PartDesign::Pocket", "Pocket005")
pocket6.Profile = sketch11
pocket6.Length = 1.5
pocket6.Reversed = True

sketch12 = body.newObject("Sketcher::SketchObject", "Sketch011")
sketch12.AttachmentSupport = (doc.getObject("YZ_Plane"), [""])
sketch12.MapMode = "FlatFace"
sketch12.AttachmentOffset = App.Placement(Vector(0, 0, 3.2), App.Rotation())
sketch12.addGeometry(Part.LineSegment(Vector(1, 9.8, 0), Vector(1, 12.8, 0)), False)
sketch12.addGeometry(Part.LineSegment(Vector(1, 12.8, 0), Vector(2.6, 12.8, 0)), False)
sketch12.addGeometry(Part.LineSegment(Vector(2.6, 12.8, 0), Vector(2.6, 12.2, 0)), False)
sketch12.addGeometry(Part.LineSegment(Vector(2.6, 12.2, 0), Vector(1, 9.8, 0)), False)
sketch12.addConstraint(Sketcher.Constraint("Coincident", 0, 2, 1, 1))
sketch12.addConstraint(Sketcher.Constraint("Coincident", 1, 2, 2, 1))
sketch12.addConstraint(Sketcher.Constraint("Coincident", 2, 2, 3, 1))
sketch12.addConstraint(Sketcher.Constraint("Coincident", 3, 2, 0, 1))
sketch12.addConstraint(Sketcher.Constraint("Vertical", 0))
sketch12.addConstraint(Sketcher.Constraint("Horizontal", 1))
sketch12.addConstraint(Sketcher.Constraint("Vertical", 2))
sketch12.addConstraint(Sketcher.Constraint("DistanceY", 0, 1, 0, 2, 3.0))
sketch12.addConstraint(Sketcher.Constraint("DistanceX", 1, 1, 1, 2, 1.6))
sketch12.addConstraint(Sketcher.Constraint("DistanceY", 2, 2, 2, 1, 0.5))
sketch12.addConstraint(Sketcher.Constraint("DistanceX", -1, 1, 0, 2, 1.0))
sketch12.addConstraint(Sketcher.Constraint("DistanceY", -1, 1, 0, 2, 12.75))
pad6 = body.newObject("PartDesign::Pad", "Pad005")
pad6.Profile = sketch12
pad6.Length = 6.4
pad6.Reversed = True
doc.recompute()

fillet3 = body.newObject("PartDesign::Fillet", "Fillet002")
fillet3.Base = (pad6, edges_at(pad6, [(0, 1, 9.75)]))
fillet3.Radius = 2
doc.recompute()

fillet4 = body.newObject("PartDesign::Fillet", "Fillet003")
fillet4.Base = (fillet3, edges_at(fillet3, [(0, 2.6, 12.25)]))
fillet4.Radius = 1
doc.recompute()

fillet5 = body.newObject("PartDesign::Fillet", "Fillet004")
fillet5.Base = (fillet4, edges_at(fillet4, [(3.2, 2, 7.55), (-3.2, 2, 7.55)]))
fillet5.Radius = 0.4

sketch13 = body.newObject("Sketcher::SketchObject", "Sketch012")
sketch13.AttachmentSupport = (doc.getObject("XZ_Plane"), [""])
sketch13.MapMode = "FlatFace"
sketch13.addGeometry(Part.LineSegment(Vector(-11, -7, 0), Vector(-16, -7, 0)), False)
sketch13.addGeometry(Part.LineSegment(Vector(-16, -7, 0), Vector(-16, -13, 0)), False)
sketch13.addGeometry(Part.LineSegment(Vector(-16, -13, 0), Vector(-11, -13, 0)), False)
sketch13.addGeometry(Part.LineSegment(Vector(-11, -13, 0), Vector(-11, -7, 0)), False)
sketch13.addGeometry(Part.LineSegment(Vector(16, -13, 0), Vector(16, -7, 0)), False)
sketch13.addGeometry(Part.LineSegment(Vector(16, -7, 0), Vector(11, -7, 0)), False)
sketch13.addGeometry(Part.LineSegment(Vector(11, -7, 0), Vector(11, -13, 0)), False)
sketch13.addGeometry(Part.LineSegment(Vector(11, -13, 0), Vector(16, -13, 0)), False)
sketch13.addGeometry(Part.LineSegment(Vector(16, 7, 0), Vector(16, 13, 0)), False)
sketch13.addGeometry(Part.LineSegment(Vector(16, 13, 0), Vector(11, 13, 0)), False)
sketch13.addGeometry(Part.LineSegment(Vector(11, 13, 0), Vector(11, 7, 0)), False)
sketch13.addGeometry(Part.LineSegment(Vector(11, 7, 0), Vector(16, 7, 0)), False)
sketch13.addGeometry(Part.LineSegment(Vector(-11, 13, 0), Vector(-16, 13, 0)), False)
sketch13.addGeometry(Part.LineSegment(Vector(-16, 13, 0), Vector(-16, 7, 0)), False)
sketch13.addGeometry(Part.LineSegment(Vector(-16, 7, 0), Vector(-11, 7, 0)), False)
sketch13.addGeometry(Part.LineSegment(Vector(-11, 7, 0), Vector(-11, 13, 0)), False)
sketch13.addConstraint(Sketcher.Constraint("Coincident", 0, 2, 1, 1))
sketch13.addConstraint(Sketcher.Constraint("Coincident", 1, 2, 2, 1))
sketch13.addConstraint(Sketcher.Constraint("Coincident", 2, 2, 3, 1))
sketch13.addConstraint(Sketcher.Constraint("Coincident", 3, 2, 0, 1))
sketch13.addConstraint(Sketcher.Constraint("Coincident", 4, 2, 5, 1))
sketch13.addConstraint(Sketcher.Constraint("Coincident", 5, 2, 6, 1))
sketch13.addConstraint(Sketcher.Constraint("Coincident", 6, 2, 7, 1))
sketch13.addConstraint(Sketcher.Constraint("Coincident", 7, 2, 4, 1))
sketch13.addConstraint(Sketcher.Constraint("Coincident", 8, 2, 9, 1))
sketch13.addConstraint(Sketcher.Constraint("Coincident", 9, 2, 10, 1))
sketch13.addConstraint(Sketcher.Constraint("Coincident", 10, 2, 11, 1))
sketch13.addConstraint(Sketcher.Constraint("Coincident", 11, 2, 8, 1))
sketch13.addConstraint(Sketcher.Constraint("Coincident", 12, 2, 13, 1))
sketch13.addConstraint(Sketcher.Constraint("Coincident", 13, 2, 14, 1))
sketch13.addConstraint(Sketcher.Constraint("Coincident", 14, 2, 15, 1))
sketch13.addConstraint(Sketcher.Constraint("Coincident", 15, 2, 12, 1))
sketch13.addConstraint(Sketcher.Constraint("Horizontal", 0))
sketch13.addConstraint(Sketcher.Constraint("Vertical", 1))
sketch13.addConstraint(Sketcher.Constraint("Horizontal", 2))
sketch13.addConstraint(Sketcher.Constraint("Vertical", 3))
sketch13.addConstraint(Sketcher.Constraint("Vertical", 4))
sketch13.addConstraint(Sketcher.Constraint("Horizontal", 5))
sketch13.addConstraint(Sketcher.Constraint("Vertical", 6))
sketch13.addConstraint(Sketcher.Constraint("Horizontal", 7))
sketch13.addConstraint(Sketcher.Constraint("Vertical", 8))
sketch13.addConstraint(Sketcher.Constraint("Horizontal", 9))
sketch13.addConstraint(Sketcher.Constraint("Vertical", 10))
sketch13.addConstraint(Sketcher.Constraint("Horizontal", 11))
sketch13.addConstraint(Sketcher.Constraint("Horizontal", 12))
sketch13.addConstraint(Sketcher.Constraint("Vertical", 13))
sketch13.addConstraint(Sketcher.Constraint("Horizontal", 14))
sketch13.addConstraint(Sketcher.Constraint("Vertical", 15))
sketch13.addConstraint(Sketcher.Constraint("Symmetric", 1, 2, 8, 2, -1, 1))
sketch13.addConstraint(Sketcher.Constraint("Symmetric", 3, 2, 10, 2, -1, 1))
sketch13.addConstraint(Sketcher.Constraint("Symmetric", 7, 2, 12, 2, -1, 1))
sketch13.addConstraint(Sketcher.Constraint("Symmetric", 5, 2, 14, 2, -1, 1))
sketch13.addConstraint(Sketcher.Constraint("Symmetric", 0, 2, 4, 2, -2))
sketch13.addConstraint(Sketcher.Constraint("Symmetric", 2, 2, 6, 2, -2))
sketch13.addConstraint(Sketcher.Constraint("Equal", 14, 1))
sketch13.addConstraint(Sketcher.Constraint("DistanceX", 0, 2, 0, 1, 5.45))
sketch13.addConstraint(Sketcher.Constraint("DistanceY", 0, 2, -1, 1, 7.3))
sketch13.addConstraint(Sketcher.Constraint("DistanceX", 2, 2, -1, 1, 10.8))
pocket7 = body.newObject("PartDesign::Pocket", "Pocket006")
pocket7.Profile = sketch13
pocket7.Length = 1
doc.recompute()

fillet6 = body.newObject("PartDesign::Fillet", "Fillet005")
fillet6.Base = (pocket7, edges_at(pocket7, [
    (-16.25, 0.5, 7.3),
    (-10.8, 0.5, 12.75),
    (-10.8, 0.5, 7.3),
    (10.8, 0.5, 12.75),
    (16.25, 0.5, 7.3),
    (10.8, 0.5, 7.3),
    (16.25, 0.5, -7.3),
    (10.8, 0.5, -12.75),
    (10.8, 0.5, -7.3),
    (-10.8, 0.5, -12.75),
    (-16.25, 0.5, -7.3),
    (-10.8, 0.5, -7.3),
]))
fillet6.Radius = 1

sketch14 = body.newObject("Sketcher::SketchObject", "Sketch013")
sketch14.AttachmentSupport = (doc.getObject("XZ_Plane"), [""])
sketch14.MapMode = "FlatFace"
sketch14.AttachmentOffset = App.Placement(Vector(0, 0, -1), App.Rotation())
sketch14.addGeometry(Part.Circle(Vector(13.5, -10, 0), Vector(0, 0, 1), 1.1), False)
sketch14.addGeometry(Part.Circle(Vector(13.5, 10, 0), Vector(0, 0, 1), 1.1), False)
sketch14.addGeometry(Part.Circle(Vector(-13.5, 10, 0), Vector(0, 0, 1), 1.1), False)
sketch14.addGeometry(Part.Circle(Vector(-13.5, -10, 0), Vector(0, 0, 1), 1.1), False)
sketch14.addConstraint(Sketcher.Constraint("Equal", 0, 1))
sketch14.addConstraint(Sketcher.Constraint("Equal", 1, 2))
sketch14.addConstraint(Sketcher.Constraint("Equal", 2, 3))
sketch14.addConstraint(Sketcher.Constraint("Symmetric", 0, 3, 2, 3, -1, 1))
sketch14.addConstraint(Sketcher.Constraint("Symmetric", 1, 3, 3, 3, -1, 1))
sketch14.addConstraint(Sketcher.Constraint("Symmetric", 1, 3, 2, 3, -2))
sketch14.addConstraint(Sketcher.Constraint("Diameter", 0, 2.3))
sketch14.addConstraint(Sketcher.Constraint("DistanceY", 0, 3, -1, 1, 10.0))
sketch14.addConstraint(Sketcher.Constraint("DistanceX", 2, 3, 1, 3, 27.0))
pocket8 = body.newObject("PartDesign::Pocket", "Pocket007")
pocket8.Profile = sketch14
pocket8.Length = 10

doc.recompute()
